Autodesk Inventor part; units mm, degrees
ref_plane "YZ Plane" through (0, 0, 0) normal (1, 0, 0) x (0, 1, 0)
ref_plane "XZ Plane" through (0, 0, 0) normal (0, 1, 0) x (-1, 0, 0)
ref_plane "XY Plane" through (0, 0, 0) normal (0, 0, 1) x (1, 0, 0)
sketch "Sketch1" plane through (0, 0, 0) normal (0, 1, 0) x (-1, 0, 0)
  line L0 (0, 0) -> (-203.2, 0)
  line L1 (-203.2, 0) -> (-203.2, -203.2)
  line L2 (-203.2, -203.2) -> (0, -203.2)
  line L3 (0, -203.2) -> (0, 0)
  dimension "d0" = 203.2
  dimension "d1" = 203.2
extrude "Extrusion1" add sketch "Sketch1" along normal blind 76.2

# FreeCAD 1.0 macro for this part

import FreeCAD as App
import Part
import Sketcher

V = App.Vector
Q = App.Units.Quantity


def add_polygon(sketch, points):
    """Adds a closed chain of lines whose ends are joined by coincident constraints."""
    first, n = sketch.GeometryCount, len(points)
    for a, b in zip(points, points[1:] + points[:1]):
        sketch.addGeometry(Part.LineSegment(App.Vector(*a, 0), App.Vector(*b, 0)), False)
    for i in range(n):
        sketch.addConstraint(Sketcher.Constraint("Coincident", first + i, 2, first + (i + 1) % n, 1))

doc = App.newDocument("Part")
body = doc.addObject("PartDesign::Body", "Body")

# Sketch on XZ plane
sketch1 = body.newObject("Sketcher::SketchObject", "Sketch")
sketch1.AttachmentSupport = (doc.getObject("XZ_Plane"), [""])
sketch1.MapMode = "FlatFace"
add_polygon(sketch1, [(0, -203), (0, 0), (203, 0), (203, -203)])  # lines 0-3
sketch1.addConstraint([
    Sketcher.Constraint("Vertical", 0),
    Sketcher.Constraint("Horizontal", 1),
    Sketcher.Constraint("Vertical", 2),
    Sketcher.Constraint("Horizontal", 3),
    Sketcher.Constraint("Coincident", 0, 2, -1, 1),
    Sketcher.Constraint("Equal", 3, 0),
    Sketcher.Constraint("DistanceX", 1, 1, 1, 2, Q("8 in")),
])
pad1 = body.newObject("PartDesign::Pad", "Pad")
pad1.Profile = sketch1
pad1.Length = Q("3 in")
pad1.Reversed = True

doc.recompute()
